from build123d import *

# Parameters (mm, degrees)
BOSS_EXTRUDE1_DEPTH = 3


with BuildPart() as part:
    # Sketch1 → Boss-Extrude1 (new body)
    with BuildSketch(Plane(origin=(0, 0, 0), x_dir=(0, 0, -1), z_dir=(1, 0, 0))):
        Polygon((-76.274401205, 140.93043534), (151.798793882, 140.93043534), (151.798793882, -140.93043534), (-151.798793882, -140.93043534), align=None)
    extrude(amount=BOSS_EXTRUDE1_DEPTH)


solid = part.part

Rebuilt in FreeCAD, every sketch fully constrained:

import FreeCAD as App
import Part
import Sketcher

V = App.Vector
Q = App.Units.Quantity

doc = App.newDocument("Part")
body = doc.addObject("PartDesign::Body", "Body")

sketch1 = body.newObject("Sketcher::SketchObject", "Sketch")
sketch1.AttachmentSupport = (doc.getObject("YZ_Plane"), [""])
sketch1.MapMode = "FlatFace"
sketch1.addGeometry([
    Part.LineSegment(V(141, -152, 0), V(141, 76, 0)),
    Part.LineSegment(V(141, 76, 0), V(-141, 152, 0)),
    Part.LineSegment(V(-141, 152, 0), V(-141, -152, 0)),
    Part.LineSegment(V(-141, -152, 0), V(141, -152, 0)),
], False)
sketch1.addConstraint([
    Sketcher.Constraint("Coincident", 0, 2, 1, 1),
    Sketcher.Constraint("Coincident", 1, 2, 2, 1),
    Sketcher.Constraint("Coincident", 2, 2, 3, 1),
    Sketcher.Constraint("Coincident", 3, 2, 0, 1),
    Sketcher.Constraint("Vertical", 0),
    Sketcher.Constraint("Vertical", 2),
    Sketcher.Constraint("Horizontal", 3),
    Sketcher.Constraint("Symmetric", 1, 2, 3, 2, -1, 1),
    Sketcher.Constraint("Angle", 1, Q("165 deg")),
    Sketcher.Constraint("DistanceX", 3, 1, 3, 2, Q("281.860871 mm")),
    Sketcher.Constraint("DistanceY", -1, 1, 0, 2, Q("76.274401 mm")),
])
pad1 = body.newObject("PartDesign::Pad", "Pad")
pad1.Profile = sketch1
pad1.Length = 3

doc.recompute()
